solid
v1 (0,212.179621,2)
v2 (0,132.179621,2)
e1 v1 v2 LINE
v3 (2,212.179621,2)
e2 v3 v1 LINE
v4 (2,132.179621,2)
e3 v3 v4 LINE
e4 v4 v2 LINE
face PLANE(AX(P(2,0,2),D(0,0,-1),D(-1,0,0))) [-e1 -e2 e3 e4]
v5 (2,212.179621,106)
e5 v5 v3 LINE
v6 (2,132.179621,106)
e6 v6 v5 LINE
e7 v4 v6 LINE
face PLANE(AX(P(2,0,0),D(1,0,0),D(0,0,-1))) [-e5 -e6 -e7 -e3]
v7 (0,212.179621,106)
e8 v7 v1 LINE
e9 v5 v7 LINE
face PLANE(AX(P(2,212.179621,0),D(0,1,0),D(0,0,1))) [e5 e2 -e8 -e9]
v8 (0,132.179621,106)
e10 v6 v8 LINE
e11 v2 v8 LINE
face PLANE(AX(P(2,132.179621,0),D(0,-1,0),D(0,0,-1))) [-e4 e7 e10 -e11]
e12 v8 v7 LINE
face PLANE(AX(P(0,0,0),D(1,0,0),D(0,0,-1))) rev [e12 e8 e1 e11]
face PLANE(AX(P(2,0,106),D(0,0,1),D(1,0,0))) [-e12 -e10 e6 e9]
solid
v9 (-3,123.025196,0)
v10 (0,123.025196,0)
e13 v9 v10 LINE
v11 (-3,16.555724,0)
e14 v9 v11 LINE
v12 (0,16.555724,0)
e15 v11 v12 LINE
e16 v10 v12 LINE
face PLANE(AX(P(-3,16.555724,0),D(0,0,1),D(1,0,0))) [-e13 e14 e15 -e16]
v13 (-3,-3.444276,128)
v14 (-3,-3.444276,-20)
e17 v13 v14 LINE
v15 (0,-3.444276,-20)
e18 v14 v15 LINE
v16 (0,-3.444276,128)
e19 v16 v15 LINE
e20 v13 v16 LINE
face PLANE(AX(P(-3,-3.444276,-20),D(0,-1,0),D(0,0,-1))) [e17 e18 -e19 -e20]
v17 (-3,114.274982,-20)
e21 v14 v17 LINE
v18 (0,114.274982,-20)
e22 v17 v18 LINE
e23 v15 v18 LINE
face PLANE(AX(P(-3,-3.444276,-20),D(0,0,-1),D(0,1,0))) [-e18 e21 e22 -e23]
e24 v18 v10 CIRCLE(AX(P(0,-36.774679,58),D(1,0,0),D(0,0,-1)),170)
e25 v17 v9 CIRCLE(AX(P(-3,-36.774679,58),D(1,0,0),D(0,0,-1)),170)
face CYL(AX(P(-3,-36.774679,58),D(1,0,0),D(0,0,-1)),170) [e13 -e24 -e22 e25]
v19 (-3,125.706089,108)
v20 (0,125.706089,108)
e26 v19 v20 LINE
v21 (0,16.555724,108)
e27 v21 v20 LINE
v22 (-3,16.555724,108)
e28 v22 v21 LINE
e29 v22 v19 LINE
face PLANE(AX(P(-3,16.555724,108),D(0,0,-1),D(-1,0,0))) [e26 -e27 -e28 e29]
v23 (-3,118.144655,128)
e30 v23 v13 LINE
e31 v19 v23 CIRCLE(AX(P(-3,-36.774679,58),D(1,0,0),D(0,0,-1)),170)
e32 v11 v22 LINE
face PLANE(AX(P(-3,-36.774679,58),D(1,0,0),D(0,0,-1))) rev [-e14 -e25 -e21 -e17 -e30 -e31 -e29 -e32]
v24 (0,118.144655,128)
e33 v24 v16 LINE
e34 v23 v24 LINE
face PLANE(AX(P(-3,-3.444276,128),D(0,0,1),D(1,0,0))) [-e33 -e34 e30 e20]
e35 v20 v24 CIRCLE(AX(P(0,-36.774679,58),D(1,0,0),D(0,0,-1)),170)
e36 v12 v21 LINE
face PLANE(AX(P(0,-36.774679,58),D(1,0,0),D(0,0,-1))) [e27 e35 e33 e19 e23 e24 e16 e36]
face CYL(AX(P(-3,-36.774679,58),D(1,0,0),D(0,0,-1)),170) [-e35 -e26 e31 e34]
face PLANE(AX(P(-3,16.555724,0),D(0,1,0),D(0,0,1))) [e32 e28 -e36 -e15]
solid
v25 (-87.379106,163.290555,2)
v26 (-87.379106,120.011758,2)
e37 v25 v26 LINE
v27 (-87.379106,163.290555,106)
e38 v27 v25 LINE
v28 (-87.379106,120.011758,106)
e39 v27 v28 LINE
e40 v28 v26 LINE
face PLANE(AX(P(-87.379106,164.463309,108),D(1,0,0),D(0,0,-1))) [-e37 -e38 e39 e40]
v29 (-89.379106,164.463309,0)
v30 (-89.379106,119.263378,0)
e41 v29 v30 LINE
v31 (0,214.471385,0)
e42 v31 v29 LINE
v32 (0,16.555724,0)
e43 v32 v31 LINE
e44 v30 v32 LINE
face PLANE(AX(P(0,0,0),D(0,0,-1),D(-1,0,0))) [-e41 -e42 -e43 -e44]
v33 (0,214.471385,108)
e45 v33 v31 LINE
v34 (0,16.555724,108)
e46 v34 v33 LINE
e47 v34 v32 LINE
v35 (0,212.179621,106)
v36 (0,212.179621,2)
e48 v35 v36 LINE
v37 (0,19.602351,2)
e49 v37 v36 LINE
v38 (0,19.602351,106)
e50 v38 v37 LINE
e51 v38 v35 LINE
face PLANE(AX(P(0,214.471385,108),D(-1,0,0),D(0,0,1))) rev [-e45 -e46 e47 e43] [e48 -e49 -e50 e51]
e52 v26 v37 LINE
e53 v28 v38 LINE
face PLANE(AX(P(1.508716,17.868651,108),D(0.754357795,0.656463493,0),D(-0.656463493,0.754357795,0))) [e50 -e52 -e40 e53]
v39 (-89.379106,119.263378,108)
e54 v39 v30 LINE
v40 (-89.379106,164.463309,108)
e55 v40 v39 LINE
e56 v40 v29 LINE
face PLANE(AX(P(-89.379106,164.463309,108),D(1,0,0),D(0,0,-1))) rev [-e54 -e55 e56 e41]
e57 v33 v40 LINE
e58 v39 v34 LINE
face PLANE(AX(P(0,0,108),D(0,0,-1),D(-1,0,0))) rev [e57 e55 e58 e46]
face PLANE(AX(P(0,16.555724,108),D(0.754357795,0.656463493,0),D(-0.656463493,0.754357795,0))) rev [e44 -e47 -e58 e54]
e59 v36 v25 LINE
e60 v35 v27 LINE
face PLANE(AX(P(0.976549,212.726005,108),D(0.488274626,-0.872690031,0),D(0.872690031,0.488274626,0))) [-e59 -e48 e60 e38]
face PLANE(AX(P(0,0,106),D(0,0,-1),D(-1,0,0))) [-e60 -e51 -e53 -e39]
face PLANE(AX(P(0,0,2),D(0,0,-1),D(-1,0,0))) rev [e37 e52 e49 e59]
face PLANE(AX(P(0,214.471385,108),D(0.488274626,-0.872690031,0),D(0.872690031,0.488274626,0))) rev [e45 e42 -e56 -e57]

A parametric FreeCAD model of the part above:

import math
import FreeCAD as App
import Part
import Sketcher

V = App.Vector


def faces_at(feature, points):
    """Names of the faces that lie closest to the given points."""
    faces = feature.Shape.Faces
    near = lambda p: min(range(len(faces)), key=lambda i: faces[i].distToShape(Part.Vertex(*p))[0])
    return sorted({f"Face{near(p) + 1}" for p in points})


def add_polygon(sketch, points):
    """Adds a closed chain of lines whose ends are joined by coincident constraints."""
    first, n = sketch.GeometryCount, len(points)
    for a, b in zip(points, points[1:] + points[:1]):
        sketch.addGeometry(Part.LineSegment(App.Vector(*a, 0), App.Vector(*b, 0)), False)
    for i in range(n):
        sketch.addConstraint(Sketcher.Constraint("Coincident", first + i, 2, first + (i + 1) % n, 1))

doc = App.newDocument("Part")
params = doc.addObject("Spreadsheet::Sheet", "Params")
for row, (alias, value) in enumerate([
    ("pad1_length", "108 mm"),
    ("thickness_wall", "2 mm"),
    ("sketch2_width", "80 mm"),
    ("sketch2_height", "104 mm"),
    ("pad2_length", "2 mm"),
    ("sketch3_radius", "170 mm"),
    ("sketch3_height", "108 mm"),
    ("sketch3_height2", "148 mm"),
    ("pad3_length", "3 mm"),
], start=1):
    params.set(f"A{row}", alias)
    params.set(f"B{row}", "=" + value)
    params.setAlias(f"B{row}", alias)

body = doc.addObject("PartDesign::Body", "Body")

sketch1 = body.newObject("Sketcher::SketchObject", "Sketch")
sketch1.AttachmentSupport = (doc.getObject("XY_Plane"), [""])
sketch1.MapMode = "FlatFace"
add_polygon(sketch1, [(0, 214), (-89, 164), (-89, 119), (0, 17)])
sketch1.addConstraint([
    Sketcher.Constraint("Vertical", 1),
    Sketcher.Constraint("Vertical", 3),
    Sketcher.Constraint("PointOnObject", 2, 2, -2),
    Sketcher.Constraint("DistanceY", 1, 2, 1, 1, 45.199932),
    Sketcher.Constraint("DistanceY", 3, 1, 3, 2, 197.915662),
    Sketcher.Constraint("Distance", 0, 102.417929),
    Sketcher.Constraint("Distance", 2, 136.15244),
    Sketcher.Constraint("DistanceY", -1, 1, 0, 2, 164.463309),
])
pad1 = body.newObject("PartDesign::Pad", "Pad")
pad1.Profile = sketch1
pad1.setExpression("Length", "Params.pad1_length")
doc.recompute()

thickness = body.newObject("PartDesign::Thickness", "Thickness")
thickness.Base = (pad1, faces_at(pad1, [(0, 115.514, 54)]))
thickness.setExpression("Value", "Params.thickness_wall")
thickness.Reversed = True
thickness.Join = "Intersection"
body2 = doc.addObject("PartDesign::Body", "Body001")

sketch2 = body2.newObject("Sketcher::SketchObject", "Sketch001")
sketch2.AttachmentSupport = (doc.getObject("YZ_Plane001"), [""])
sketch2.MapMode = "FlatFace"
add_polygon(sketch2, [(212, 106), (132, 106), (132, 2), (212, 2)])
sketch2.addConstraint([
    Sketcher.Constraint("Horizontal", 0),
    Sketcher.Constraint("Vertical", 1),
    Sketcher.Constraint("Horizontal", 2),
    Sketcher.Constraint("Vertical", 3),
    Sketcher.Constraint("DistanceX", 0, 2, 0, 1, 80.0),
    Sketcher.Constraint("DistanceY", 1, 2, 1, 1, 104.0),
    Sketcher.Constraint("DistanceY", -1, 1, 0, 2, 106.0),
    Sketcher.Constraint("DistanceX", -1, 1, 0, 2, 132.179621),
])
sketch2.setExpression("Constraints[8]", "Params.sketch2_width")
sketch2.setExpression("Constraints[9]", "Params.sketch2_height")
pad2 = body2.newObject("PartDesign::Pad", "Pad001")
pad2.Profile = sketch2
pad2.setExpression("Length", "Params.pad2_length")
body3 = doc.addObject("PartDesign::Body", "Body002")

sketch3 = body3.newObject("Sketcher::SketchObject", "Sketch002")
sketch3.AttachmentSupport = (doc.getObject("YZ_Plane002"), [""])
sketch3.MapMode = "FlatFace"
sketch3.addGeometry([
    Part.LineSegment(V(17, 0, 0), V(17, 108, 0)),
    Part.LineSegment(V(17, 108, 0), V(126, 108, 0)),
    Part.ArcOfCircle(Part.Circle(V(-37, 58, 0), V(0, 0, 1), 170), math.radians(17.1), math.radians(24.32)),
    Part.LineSegment(V(118, 128, 0), V(-3, 128, 0)),
    Part.LineSegment(V(-3, 128, 0), V(-3, -20, 0)),
    Part.LineSegment(V(-3, -20, 0), V(114, -20, 0)),
    Part.ArcOfCircle(Part.Circle(V(-37, 58, 0), V(0, 0, 1), 170), math.radians(-27.31), math.radians(-19.95)),
    Part.LineSegment(V(123, 0, 0), V(17, 0, 0)),
], False)
sketch3.addConstraint([
    Sketcher.Constraint("Coincident", 0, 2, 1, 1),
    Sketcher.Constraint("Coincident", 1, 2, 2, 1),
    Sketcher.Constraint("Coincident", 2, 2, 3, 1),
    Sketcher.Constraint("Coincident", 3, 2, 4, 1),
    Sketcher.Constraint("Coincident", 4, 2, 5, 1),
    Sketcher.Constraint("Coincident", 5, 2, 6, 1),
    Sketcher.Constraint("Coincident", 6, 2, 7, 1),
    Sketcher.Constraint("Coincident", 7, 2, 0, 1),
    Sketcher.Constraint("Vertical", 0),
    Sketcher.Constraint("Horizontal", 1),
    Sketcher.Constraint("Horizontal", 3),
    Sketcher.Constraint("Vertical", 4),
    Sketcher.Constraint("Horizontal", 5),
    Sketcher.Constraint("Horizontal", 7),
    Sketcher.Constraint("Coincident", 6, 3, 2, 3),
    Sketcher.Constraint("Equal", 2, 6),
    Sketcher.Constraint("PointOnObject", 6, 2, -1),
    Sketcher.Constraint("Radius", 2, 170.0),
    Sketcher.Constraint("DistanceY", 0, 1, 0, 2, 108.0),
    Sketcher.Constraint("DistanceY", 4, 2, 4, 1, 148.0),
    Sketcher.Constraint("DistanceY", -1, 1, 2, 3, 58.0),
    Sketcher.Constraint("DistanceY", -1, 1, 2, 2, 128.0),
    Sketcher.Constraint("DistanceX", 3, 2, 0, 2, 20.0),
    Sketcher.Constraint("DistanceX", 3, 2, 3, 1, 121.588931),
    Sketcher.Constraint("DistanceX", 2, 3, -1, 1, 36.774679),
])
sketch3.setExpression("Constraints[17]", "Params.sketch3_radius")
sketch3.setExpression("Constraints[18]", "Params.sketch3_height")
sketch3.setExpression("Constraints[19]", "Params.sketch3_height2")
pad3 = body3.newObject("PartDesign::Pad", "Pad002")
pad3.Profile = sketch3
pad3.setExpression("Length", "Params.pad3_length")
pad3.Reversed = True

doc.recompute()
